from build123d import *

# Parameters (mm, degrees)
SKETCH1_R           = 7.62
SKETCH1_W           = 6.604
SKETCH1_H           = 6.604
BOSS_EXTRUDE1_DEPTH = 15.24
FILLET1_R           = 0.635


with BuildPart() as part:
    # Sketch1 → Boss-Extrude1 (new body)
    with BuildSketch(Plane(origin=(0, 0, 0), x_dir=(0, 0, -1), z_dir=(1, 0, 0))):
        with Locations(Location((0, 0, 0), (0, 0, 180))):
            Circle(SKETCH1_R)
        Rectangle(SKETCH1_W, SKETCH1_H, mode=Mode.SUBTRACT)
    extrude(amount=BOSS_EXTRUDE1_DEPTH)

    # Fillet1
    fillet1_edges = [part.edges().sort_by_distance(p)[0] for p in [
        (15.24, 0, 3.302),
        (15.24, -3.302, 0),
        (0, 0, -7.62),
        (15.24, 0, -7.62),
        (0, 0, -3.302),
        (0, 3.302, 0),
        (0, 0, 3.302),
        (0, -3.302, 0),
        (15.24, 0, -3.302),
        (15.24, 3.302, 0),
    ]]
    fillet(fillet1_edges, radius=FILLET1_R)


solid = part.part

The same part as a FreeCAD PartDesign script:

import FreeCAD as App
import Part
import Sketcher

V = App.Vector
Q = App.Units.Quantity


def edges_at(feature, points):
    """Names of the edges that pass closest to the given points."""
    edges = feature.Shape.Edges
    near = lambda p: min(range(len(edges)), key=lambda i: edges[i].distToShape(Part.Vertex(*p))[0])
    return sorted({f"Edge{near(p) + 1}" for p in points})

doc = App.newDocument("Part")
body = doc.addObject("PartDesign::Body", "Body")

# Sketch on YZ plane
sketch1 = body.newObject("Sketcher::SketchObject", "Sketch")
sketch1.AttachmentSupport = (doc.getObject("YZ_Plane"), [""])
sketch1.MapMode = "FlatFace"
sketch1.addGeometry(Part.Circle(V(0, 0, 0), V(0, 0, 1), 8), False)
sketch1.addGeometry(Part.LineSegment(V(-3, -3, 0), V(-3, 3, 0)), False)
sketch1.addGeometry(Part.LineSegment(V(-3, 3, 0), V(3, 3, 0)), False)
sketch1.addGeometry(Part.LineSegment(V(3, 3, 0), V(3, -3, 0)), False)
sketch1.addGeometry(Part.LineSegment(V(3, -3, 0), V(-3, -3, 0)), False)
sketch1.addConstraint(Sketcher.Constraint("Coincident", 1, 2, 2, 1))
sketch1.addConstraint(Sketcher.Constraint("Coincident", 2, 2, 3, 1))
sketch1.addConstraint(Sketcher.Constraint("Coincident", 3, 2, 4, 1))
sketch1.addConstraint(Sketcher.Constraint("Coincident", 4, 2, 1, 1))
sketch1.addConstraint(Sketcher.Constraint("Vertical", 1))
sketch1.addConstraint(Sketcher.Constraint("Horizontal", 2))
sketch1.addConstraint(Sketcher.Constraint("Vertical", 3))
sketch1.addConstraint(Sketcher.Constraint("Horizontal", 4))
sketch1.addConstraint(Sketcher.Constraint("Coincident", 0, 3, -1, 1))
sketch1.addConstraint(Sketcher.Constraint("Symmetric", 1, 2, 3, 2, -1, 1))
sketch1.addConstraint(Sketcher.Constraint("Equal", 4, 1))
sketch1.addConstraint(Sketcher.Constraint("Diameter", 0, Q("0.6 in")))
sketch1.addConstraint(Sketcher.Constraint("DistanceX", 2, 1, 2, 2, Q("0.26 in")))
pad1 = body.newObject("PartDesign::Pad", "Pad")
pad1.Profile = sketch1
pad1.Length = Q("0.6 in")
doc.recompute()

fillet = body.newObject("PartDesign::Fillet", "Fillet")
fillet.Base = (pad1, edges_at(pad1, [
    (15.24, 0, 3.302),
    (15.24, -3.302, 0),
    (0, 0, -7.62),
    (15.24, 0, -7.62),
    (0, 0, -3.302),
    (0, 3.302, 0),
    (0, 0, 3.302),
    (0, -3.302, 0),
    (15.24, 0, -3.302),
    (15.24, 3.302, 0),
]))
fillet.Radius = Q("0.025 in")

doc.recompute()
